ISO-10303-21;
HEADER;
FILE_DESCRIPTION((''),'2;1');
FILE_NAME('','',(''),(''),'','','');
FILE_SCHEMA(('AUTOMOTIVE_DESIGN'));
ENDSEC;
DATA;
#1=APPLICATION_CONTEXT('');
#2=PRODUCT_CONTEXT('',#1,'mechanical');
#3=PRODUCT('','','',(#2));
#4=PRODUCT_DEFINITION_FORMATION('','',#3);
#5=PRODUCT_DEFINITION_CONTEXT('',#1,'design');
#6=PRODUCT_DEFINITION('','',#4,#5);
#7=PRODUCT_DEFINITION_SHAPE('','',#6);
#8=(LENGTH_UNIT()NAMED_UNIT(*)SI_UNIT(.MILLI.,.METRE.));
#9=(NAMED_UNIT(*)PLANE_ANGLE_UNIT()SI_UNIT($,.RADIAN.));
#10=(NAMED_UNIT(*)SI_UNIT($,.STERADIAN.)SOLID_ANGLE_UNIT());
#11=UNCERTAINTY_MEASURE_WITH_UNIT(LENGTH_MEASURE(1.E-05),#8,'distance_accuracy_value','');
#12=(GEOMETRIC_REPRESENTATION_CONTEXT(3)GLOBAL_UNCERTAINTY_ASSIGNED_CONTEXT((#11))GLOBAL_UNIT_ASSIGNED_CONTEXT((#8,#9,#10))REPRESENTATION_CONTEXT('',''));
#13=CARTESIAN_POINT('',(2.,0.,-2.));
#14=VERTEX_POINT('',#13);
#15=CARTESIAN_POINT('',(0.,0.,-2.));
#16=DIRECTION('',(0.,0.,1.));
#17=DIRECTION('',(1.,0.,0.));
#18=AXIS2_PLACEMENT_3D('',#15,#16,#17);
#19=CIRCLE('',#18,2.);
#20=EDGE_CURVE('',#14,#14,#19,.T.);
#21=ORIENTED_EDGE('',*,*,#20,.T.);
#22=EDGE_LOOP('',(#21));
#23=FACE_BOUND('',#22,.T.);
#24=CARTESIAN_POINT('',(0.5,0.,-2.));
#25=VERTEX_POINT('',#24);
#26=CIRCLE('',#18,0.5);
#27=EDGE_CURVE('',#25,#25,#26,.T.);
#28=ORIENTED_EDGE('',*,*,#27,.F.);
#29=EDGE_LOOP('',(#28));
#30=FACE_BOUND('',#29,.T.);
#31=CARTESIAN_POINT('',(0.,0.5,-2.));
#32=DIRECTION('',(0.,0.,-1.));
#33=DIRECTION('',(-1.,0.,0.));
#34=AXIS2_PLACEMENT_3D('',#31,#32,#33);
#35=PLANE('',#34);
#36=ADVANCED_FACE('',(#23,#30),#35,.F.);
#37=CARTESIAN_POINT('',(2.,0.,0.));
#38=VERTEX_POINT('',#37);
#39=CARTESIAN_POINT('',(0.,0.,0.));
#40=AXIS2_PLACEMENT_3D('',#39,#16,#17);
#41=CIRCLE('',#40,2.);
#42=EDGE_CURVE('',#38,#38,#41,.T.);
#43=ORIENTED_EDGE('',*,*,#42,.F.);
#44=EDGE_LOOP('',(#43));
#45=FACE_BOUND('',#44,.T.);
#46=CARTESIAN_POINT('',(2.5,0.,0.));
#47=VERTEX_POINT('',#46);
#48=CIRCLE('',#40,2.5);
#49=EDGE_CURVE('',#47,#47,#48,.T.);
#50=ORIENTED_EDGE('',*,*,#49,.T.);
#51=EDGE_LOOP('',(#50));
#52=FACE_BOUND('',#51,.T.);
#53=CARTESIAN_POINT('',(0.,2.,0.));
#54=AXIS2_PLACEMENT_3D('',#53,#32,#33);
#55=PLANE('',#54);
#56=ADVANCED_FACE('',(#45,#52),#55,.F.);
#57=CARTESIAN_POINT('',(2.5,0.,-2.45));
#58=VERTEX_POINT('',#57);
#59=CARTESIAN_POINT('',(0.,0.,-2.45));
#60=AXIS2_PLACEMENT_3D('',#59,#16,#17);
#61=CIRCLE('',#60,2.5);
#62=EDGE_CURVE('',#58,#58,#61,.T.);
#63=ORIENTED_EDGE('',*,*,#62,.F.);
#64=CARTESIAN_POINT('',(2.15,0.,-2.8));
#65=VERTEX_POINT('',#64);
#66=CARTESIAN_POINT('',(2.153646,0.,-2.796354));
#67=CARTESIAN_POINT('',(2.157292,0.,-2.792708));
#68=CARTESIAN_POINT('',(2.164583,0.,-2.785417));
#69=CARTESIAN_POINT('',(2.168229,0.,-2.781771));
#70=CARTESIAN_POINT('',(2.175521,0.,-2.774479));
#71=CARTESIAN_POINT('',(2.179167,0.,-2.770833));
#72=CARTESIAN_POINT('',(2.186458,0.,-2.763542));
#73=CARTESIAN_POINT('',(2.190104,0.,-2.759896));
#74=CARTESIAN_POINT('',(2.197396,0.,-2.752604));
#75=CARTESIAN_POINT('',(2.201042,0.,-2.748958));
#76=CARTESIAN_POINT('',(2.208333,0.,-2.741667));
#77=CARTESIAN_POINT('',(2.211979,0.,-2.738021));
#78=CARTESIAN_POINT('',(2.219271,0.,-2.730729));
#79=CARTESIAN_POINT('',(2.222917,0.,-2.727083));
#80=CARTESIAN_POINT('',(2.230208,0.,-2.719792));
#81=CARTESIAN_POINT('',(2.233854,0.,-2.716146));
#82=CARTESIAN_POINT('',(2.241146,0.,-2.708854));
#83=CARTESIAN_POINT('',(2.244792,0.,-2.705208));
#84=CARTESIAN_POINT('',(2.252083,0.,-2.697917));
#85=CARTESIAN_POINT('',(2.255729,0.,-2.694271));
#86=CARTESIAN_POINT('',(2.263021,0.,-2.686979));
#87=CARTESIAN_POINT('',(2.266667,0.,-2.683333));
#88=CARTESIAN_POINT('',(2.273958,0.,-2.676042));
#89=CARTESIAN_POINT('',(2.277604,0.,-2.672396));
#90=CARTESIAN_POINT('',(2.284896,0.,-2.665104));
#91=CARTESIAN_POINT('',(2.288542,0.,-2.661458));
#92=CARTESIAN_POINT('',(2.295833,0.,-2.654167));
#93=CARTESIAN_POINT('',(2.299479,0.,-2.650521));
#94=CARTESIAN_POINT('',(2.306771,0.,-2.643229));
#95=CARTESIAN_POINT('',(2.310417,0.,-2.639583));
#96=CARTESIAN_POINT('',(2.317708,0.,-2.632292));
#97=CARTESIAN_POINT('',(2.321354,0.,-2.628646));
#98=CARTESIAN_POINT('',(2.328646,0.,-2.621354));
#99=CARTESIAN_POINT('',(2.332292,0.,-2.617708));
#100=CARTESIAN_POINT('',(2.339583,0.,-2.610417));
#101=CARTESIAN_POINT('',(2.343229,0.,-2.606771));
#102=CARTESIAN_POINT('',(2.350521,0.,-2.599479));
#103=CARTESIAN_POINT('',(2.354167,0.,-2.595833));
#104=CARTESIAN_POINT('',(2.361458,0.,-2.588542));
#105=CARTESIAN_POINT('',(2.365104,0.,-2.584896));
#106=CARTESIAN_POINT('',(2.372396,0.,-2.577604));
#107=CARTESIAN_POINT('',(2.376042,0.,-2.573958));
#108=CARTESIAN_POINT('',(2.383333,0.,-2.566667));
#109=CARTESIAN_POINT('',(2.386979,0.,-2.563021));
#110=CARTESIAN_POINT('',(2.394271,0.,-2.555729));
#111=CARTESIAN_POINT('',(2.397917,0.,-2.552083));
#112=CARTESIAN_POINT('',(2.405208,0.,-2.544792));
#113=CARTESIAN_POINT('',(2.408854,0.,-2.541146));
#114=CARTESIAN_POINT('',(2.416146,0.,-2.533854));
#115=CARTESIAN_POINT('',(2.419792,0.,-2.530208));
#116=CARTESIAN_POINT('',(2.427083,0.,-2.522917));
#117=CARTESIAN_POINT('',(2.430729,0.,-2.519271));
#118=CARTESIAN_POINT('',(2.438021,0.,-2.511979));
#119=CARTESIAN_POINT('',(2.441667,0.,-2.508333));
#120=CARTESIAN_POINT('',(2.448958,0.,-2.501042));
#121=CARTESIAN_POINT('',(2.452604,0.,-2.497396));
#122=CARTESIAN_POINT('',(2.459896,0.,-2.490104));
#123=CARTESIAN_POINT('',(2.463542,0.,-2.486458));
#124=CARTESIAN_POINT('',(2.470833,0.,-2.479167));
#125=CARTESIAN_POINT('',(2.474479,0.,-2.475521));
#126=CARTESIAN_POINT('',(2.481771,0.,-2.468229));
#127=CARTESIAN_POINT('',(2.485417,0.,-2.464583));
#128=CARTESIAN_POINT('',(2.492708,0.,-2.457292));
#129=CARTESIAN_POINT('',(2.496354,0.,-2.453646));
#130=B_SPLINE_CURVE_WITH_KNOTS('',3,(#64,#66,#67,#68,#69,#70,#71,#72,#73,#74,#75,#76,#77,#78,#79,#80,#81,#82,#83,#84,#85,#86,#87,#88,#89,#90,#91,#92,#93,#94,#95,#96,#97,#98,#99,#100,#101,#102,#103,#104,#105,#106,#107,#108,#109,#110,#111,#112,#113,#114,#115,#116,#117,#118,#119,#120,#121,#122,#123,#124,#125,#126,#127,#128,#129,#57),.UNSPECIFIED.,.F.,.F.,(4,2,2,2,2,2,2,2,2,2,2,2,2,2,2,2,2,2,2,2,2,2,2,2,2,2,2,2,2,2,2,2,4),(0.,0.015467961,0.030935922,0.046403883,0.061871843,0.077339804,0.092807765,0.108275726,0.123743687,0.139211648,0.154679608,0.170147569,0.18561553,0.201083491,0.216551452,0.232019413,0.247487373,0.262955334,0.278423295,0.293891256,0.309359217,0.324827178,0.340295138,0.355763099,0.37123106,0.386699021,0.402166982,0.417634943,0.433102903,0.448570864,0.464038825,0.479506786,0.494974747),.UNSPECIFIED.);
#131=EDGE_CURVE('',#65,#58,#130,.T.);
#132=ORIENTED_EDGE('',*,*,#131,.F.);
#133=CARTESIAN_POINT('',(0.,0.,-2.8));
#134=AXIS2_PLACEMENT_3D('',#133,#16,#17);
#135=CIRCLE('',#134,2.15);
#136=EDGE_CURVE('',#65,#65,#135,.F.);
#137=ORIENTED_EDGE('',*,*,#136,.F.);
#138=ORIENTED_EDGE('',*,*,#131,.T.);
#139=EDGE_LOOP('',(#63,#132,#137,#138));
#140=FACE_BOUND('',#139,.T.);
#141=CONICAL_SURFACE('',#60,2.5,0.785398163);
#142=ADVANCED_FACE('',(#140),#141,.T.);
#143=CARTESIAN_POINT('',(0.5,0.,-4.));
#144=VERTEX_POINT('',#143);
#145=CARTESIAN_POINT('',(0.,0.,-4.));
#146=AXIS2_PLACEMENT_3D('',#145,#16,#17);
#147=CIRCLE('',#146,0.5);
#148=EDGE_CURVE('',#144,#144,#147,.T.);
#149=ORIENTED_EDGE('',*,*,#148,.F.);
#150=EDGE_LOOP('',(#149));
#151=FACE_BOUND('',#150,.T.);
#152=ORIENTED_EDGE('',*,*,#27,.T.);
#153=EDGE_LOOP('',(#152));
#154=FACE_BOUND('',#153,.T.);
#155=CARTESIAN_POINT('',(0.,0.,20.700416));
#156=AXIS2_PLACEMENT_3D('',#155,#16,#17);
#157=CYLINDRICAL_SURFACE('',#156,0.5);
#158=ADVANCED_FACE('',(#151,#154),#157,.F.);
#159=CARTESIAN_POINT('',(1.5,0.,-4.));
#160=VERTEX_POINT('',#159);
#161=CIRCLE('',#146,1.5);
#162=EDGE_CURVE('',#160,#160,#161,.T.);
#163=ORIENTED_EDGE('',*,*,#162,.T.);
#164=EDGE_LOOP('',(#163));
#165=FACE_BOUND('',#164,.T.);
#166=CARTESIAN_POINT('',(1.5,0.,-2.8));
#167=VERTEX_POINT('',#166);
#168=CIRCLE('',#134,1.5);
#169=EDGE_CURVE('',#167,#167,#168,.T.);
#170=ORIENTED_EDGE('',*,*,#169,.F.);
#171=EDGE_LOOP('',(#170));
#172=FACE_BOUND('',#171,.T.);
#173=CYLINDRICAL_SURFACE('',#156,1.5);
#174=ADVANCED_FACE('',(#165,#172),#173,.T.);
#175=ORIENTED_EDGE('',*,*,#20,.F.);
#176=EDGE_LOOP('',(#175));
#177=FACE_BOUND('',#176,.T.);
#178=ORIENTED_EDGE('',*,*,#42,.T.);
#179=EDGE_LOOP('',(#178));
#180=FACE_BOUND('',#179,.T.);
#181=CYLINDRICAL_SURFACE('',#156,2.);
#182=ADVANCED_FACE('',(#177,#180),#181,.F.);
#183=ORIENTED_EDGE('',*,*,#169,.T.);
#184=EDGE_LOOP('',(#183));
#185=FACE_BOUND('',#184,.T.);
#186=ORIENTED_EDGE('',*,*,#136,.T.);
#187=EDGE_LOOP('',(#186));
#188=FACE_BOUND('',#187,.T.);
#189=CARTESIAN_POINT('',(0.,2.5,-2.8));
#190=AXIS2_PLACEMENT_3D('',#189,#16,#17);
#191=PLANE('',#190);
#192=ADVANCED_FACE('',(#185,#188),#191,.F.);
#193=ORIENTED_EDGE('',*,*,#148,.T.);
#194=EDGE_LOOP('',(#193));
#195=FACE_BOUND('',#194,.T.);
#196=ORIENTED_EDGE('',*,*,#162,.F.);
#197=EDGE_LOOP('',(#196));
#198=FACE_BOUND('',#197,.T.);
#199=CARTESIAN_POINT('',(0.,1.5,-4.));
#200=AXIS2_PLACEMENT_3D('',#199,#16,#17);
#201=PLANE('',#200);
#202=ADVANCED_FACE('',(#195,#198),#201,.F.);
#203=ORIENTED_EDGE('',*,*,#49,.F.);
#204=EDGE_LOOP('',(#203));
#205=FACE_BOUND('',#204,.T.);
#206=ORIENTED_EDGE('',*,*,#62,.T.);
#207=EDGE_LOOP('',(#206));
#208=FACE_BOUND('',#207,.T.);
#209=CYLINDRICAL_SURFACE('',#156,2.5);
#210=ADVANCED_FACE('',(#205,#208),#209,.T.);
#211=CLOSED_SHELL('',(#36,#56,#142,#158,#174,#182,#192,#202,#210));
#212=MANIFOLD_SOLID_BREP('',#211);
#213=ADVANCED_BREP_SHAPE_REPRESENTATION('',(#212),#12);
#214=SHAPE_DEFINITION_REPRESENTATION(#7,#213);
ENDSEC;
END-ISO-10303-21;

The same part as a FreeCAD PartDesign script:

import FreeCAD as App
import Part
import Sketcher
Q = App.Units.Quantity


def edges_at(feature, points):
    """Names of the edges that pass closest to the given points."""
    edges = feature.Shape.Edges
    near = lambda p: min(range(len(edges)), key=lambda i: edges[i].distToShape(Part.Vertex(*p))[0])
    return sorted({f"Edge{near(p) + 1}" for p in points})


def add_polygon(sketch, points):
    """Adds a closed chain of lines whose ends are joined by coincident constraints."""
    first, n = sketch.GeometryCount, len(points)
    for a, b in zip(points, points[1:] + points[:1]):
        sketch.addGeometry(Part.LineSegment(App.Vector(*a, 0), App.Vector(*b, 0)), False)
    for i in range(n):
        sketch.addConstraint(Sketcher.Constraint("Coincident", first + i, 2, first + (i + 1) % n, 1))

doc = App.newDocument("Part")
body = doc.addObject("PartDesign::Body", "Body")

sketch1 = body.newObject("Sketcher::SketchObject", "Sketch")
sketch1.AttachmentSupport = (doc.getObject("YZ_Plane"), [""])
sketch1.MapMode = "FlatFace"
add_polygon(sketch1, [(2.5, -2.8), (2.5, 0), (2, 0), (2, -2), (0.5, -2), (0.5, -4), (1.5, -4), (1.5, -2.8)])
sketch1.addConstraint([
    Sketcher.Constraint("Vertical", 0),
    Sketcher.Constraint("Horizontal", 1),
    Sketcher.Constraint("Vertical", 2),
    Sketcher.Constraint("Horizontal", 3),
    Sketcher.Constraint("Vertical", 4),
    Sketcher.Constraint("Horizontal", 5),
    Sketcher.Constraint("Vertical", 6),
    Sketcher.Constraint("Horizontal", 7),
    Sketcher.Constraint("PointOnObject", 0, 2, -1),
    Sketcher.Constraint("Equal", 5, 7),
    Sketcher.Constraint("Equal", 2, 4),
    Sketcher.Constraint("DistanceX", 5, 1, 5, 2, Q("1 mm")),
    Sketcher.Constraint("DistanceY", 2, 2, 2, 1, Q("2 mm")),
    Sketcher.Constraint("DistanceX", 1, 2, 1, 1, Q("0.5 mm")),
    Sketcher.Constraint("DistanceY", 0, 1, 0, 2, Q("2.8 mm")),
    Sketcher.Constraint("DistanceX", -1, 1, 1, 2, Q("2 mm")),
])
revolution = body.newObject("PartDesign::Revolution", "Revolution")
revolution.Profile = sketch1
revolution.ReferenceAxis = (sketch1, ["V_Axis"])
revolution.Angle = 360
doc.recompute()

chamfer = body.newObject("PartDesign::Chamfer", "Chamfer")
chamfer.Base = (revolution, edges_at(revolution, [(-2.5, 0, -2.8)]))
chamfer.Size = 0.35

doc.recompute()
